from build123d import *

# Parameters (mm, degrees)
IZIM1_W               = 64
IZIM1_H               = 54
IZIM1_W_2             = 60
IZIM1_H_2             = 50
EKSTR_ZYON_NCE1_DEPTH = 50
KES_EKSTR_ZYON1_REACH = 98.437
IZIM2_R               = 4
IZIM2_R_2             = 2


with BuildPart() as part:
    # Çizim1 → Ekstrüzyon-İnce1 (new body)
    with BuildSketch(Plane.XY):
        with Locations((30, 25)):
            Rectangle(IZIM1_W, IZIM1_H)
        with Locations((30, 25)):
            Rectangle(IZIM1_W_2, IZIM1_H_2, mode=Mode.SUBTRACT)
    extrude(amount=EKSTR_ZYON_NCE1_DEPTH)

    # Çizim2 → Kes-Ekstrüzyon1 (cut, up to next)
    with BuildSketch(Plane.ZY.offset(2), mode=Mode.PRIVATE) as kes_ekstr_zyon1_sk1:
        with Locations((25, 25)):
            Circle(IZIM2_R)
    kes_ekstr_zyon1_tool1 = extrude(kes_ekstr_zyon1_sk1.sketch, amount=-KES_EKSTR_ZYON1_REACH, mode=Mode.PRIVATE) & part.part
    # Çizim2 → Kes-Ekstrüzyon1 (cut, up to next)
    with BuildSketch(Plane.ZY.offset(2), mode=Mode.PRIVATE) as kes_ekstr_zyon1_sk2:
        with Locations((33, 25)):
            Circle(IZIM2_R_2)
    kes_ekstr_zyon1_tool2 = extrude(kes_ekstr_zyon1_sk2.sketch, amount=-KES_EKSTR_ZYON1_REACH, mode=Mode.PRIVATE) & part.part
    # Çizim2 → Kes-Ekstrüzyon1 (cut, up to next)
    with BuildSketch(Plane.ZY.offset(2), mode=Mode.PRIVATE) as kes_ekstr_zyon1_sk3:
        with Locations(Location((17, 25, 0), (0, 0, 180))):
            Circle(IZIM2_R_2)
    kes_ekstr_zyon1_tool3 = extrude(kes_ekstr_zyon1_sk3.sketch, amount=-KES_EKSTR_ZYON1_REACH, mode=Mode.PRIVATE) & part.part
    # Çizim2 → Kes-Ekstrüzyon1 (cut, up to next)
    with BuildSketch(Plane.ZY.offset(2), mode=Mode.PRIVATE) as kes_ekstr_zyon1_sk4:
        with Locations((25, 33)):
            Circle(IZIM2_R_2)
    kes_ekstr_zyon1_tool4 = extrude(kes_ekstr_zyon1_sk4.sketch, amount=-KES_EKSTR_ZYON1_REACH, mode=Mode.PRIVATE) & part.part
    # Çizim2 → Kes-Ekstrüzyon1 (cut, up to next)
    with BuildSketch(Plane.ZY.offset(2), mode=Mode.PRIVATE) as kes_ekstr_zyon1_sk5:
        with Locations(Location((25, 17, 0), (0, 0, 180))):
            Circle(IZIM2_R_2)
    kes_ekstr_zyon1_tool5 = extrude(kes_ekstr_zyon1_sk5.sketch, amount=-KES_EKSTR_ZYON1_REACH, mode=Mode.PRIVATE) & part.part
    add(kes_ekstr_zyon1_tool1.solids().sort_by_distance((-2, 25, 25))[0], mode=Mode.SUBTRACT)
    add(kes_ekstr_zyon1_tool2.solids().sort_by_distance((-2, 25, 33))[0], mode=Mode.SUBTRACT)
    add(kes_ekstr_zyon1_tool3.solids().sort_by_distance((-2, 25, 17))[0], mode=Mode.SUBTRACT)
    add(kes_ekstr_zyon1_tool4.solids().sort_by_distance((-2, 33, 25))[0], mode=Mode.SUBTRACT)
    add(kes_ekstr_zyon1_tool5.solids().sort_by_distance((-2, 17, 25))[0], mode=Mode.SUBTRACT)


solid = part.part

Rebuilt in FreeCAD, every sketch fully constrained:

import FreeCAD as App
import Part
import Sketcher

doc = App.newDocument("Part")
body = doc.addObject("PartDesign::Body", "Body")

# Sketch on XY plane
sketch1 = doc.addObject("Sketcher::SketchObject", "Sketch")
body.addObject(sketch1)
sketch1.AttachmentSupport = (doc.XY_Plane, [""])
sketch1.MapMode = "FlatFace"
sketch1.addGeometry([
    Part.LineSegment(App.Vector(-2, 52, 0), App.Vector(-2, -2, 0)),  # 0
    Part.LineSegment(App.Vector(-2, -2, 0), App.Vector(62, -2, 0)),  # 1
    Part.LineSegment(App.Vector(62, -2, 0), App.Vector(62, 52, 0)),  # 2
    Part.LineSegment(App.Vector(62, 52, 0), App.Vector(-2, 52, 0)),  # 3
    Part.LineSegment(App.Vector(60, 0, 0), App.Vector(0, 0, 0)),  # 4
    Part.LineSegment(App.Vector(0, 0, 0), App.Vector(0, 50, 0)),  # 5
    Part.LineSegment(App.Vector(0, 50, 0), App.Vector(60, 50, 0)),  # 6
    Part.LineSegment(App.Vector(60, 50, 0), App.Vector(60, 0, 0)),  # 7
], False)
sketch1.addConstraint([
    Sketcher.Constraint("Coincident", 0, 2, 1, 1),
    Sketcher.Constraint("Coincident", 1, 2, 2, 1),
    Sketcher.Constraint("Coincident", 2, 2, 3, 1),
    Sketcher.Constraint("Coincident", 3, 2, 0, 1),
    Sketcher.Constraint("Coincident", 4, 2, 5, 1),
    Sketcher.Constraint("Coincident", 5, 2, 6, 1),
    Sketcher.Constraint("Coincident", 6, 2, 7, 1),
    Sketcher.Constraint("Coincident", 7, 2, 4, 1),
    Sketcher.Constraint("Vertical", 0),
    Sketcher.Constraint("Horizontal", 1),
    Sketcher.Constraint("Vertical", 2),
    Sketcher.Constraint("Horizontal", 3),
    Sketcher.Constraint("Horizontal", 4),
    Sketcher.Constraint("Vertical", 5),
    Sketcher.Constraint("Horizontal", 6),
    Sketcher.Constraint("Vertical", 7),
    Sketcher.Constraint("Coincident", 4, 2, -1, 1),
    Sketcher.Constraint("DistanceX", 1, 1, 1, 2, 64.0),
    Sketcher.Constraint("DistanceX", 4, 2, 4, 1, 60.0),
    Sketcher.Constraint("DistanceY", 0, 2, 0, 1, 54.0),
    Sketcher.Constraint("DistanceY", 5, 1, 5, 2, 50.0),
    Sketcher.Constraint("DistanceX", 0, 2, -1, 1, 2.0),
    Sketcher.Constraint("DistanceY", 0, 2, -1, 1, 2.0),
])
pad1 = doc.addObject("PartDesign::Pad", "Pad")
body.addObject(pad1)
pad1.Profile = sketch1
pad1.Length = 50

# Sketch on YZ plane
sketch2 = doc.addObject("Sketcher::SketchObject", "Sketch001")
body.addObject(sketch2)
sketch2.AttachmentSupport = (doc.YZ_Plane, [""])
sketch2.MapMode = "FlatFace"
sketch2.AttachmentOffset = App.Placement(App.Vector(0, 0, -2), App.Rotation())
sketch2.addGeometry(Part.Circle(App.Vector(25, 25, 0), App.Vector(0, 0, 1), 4), False)
sketch2.addConstraint([
    Sketcher.Constraint("Diameter", 0, 8.0),
    Sketcher.Constraint("DistanceX", -1, 1, 0, 3, 25.0),
    Sketcher.Constraint("DistanceY", -1, 1, 0, 3, 25.0),
])
pocket1 = doc.addObject("PartDesign::Pocket", "Pocket")
body.addObject(pocket1)
pocket1.Profile = sketch2
pocket1.Type = "UpToFirst"
pocket1.Reversed = True

# Sketch on YZ plane
sketch3 = doc.addObject("Sketcher::SketchObject", "Sketch002")
body.addObject(sketch3)
sketch3.AttachmentSupport = (doc.YZ_Plane, [""])
sketch3.MapMode = "FlatFace"
sketch3.AttachmentOffset = App.Placement(App.Vector(0, 0, -2), App.Rotation())
sketch3.addGeometry(Part.Circle(App.Vector(25, 33, 0), App.Vector(0, 0, 1), 2), False)
sketch3.addConstraint([
    Sketcher.Constraint("Diameter", 0, 4.0),
    Sketcher.Constraint("DistanceX", -1, 1, 0, 3, 25.0),
    Sketcher.Constraint("DistanceY", -1, 1, 0, 3, 33.0),
])
pocket2 = doc.addObject("PartDesign::Pocket", "Pocket001")
body.addObject(pocket2)
pocket2.Profile = sketch3
pocket2.Type = "UpToFirst"
pocket2.Reversed = True

# Sketch on YZ plane
sketch4 = doc.addObject("Sketcher::SketchObject", "Sketch003")
body.addObject(sketch4)
sketch4.AttachmentSupport = (doc.YZ_Plane, [""])
sketch4.MapMode = "FlatFace"
sketch4.AttachmentOffset = App.Placement(App.Vector(0, 0, -2), App.Rotation())
sketch4.addGeometry(Part.Circle(App.Vector(25, 17, 0), App.Vector(0, 0, 1), 2), False)
sketch4.addConstraint([
    Sketcher.Constraint("Diameter", 0, 4.0),
    Sketcher.Constraint("DistanceX", -1, 1, 0, 3, 25.0),
    Sketcher.Constraint("DistanceY", -1, 1, 0, 3, 17.0),
])
pocket3 = doc.addObject("PartDesign::Pocket", "Pocket002")
body.addObject(pocket3)
pocket3.Profile = sketch4
pocket3.Type = "UpToFirst"
pocket3.Reversed = True

# Sketch on YZ plane
sketch5 = doc.addObject("Sketcher::SketchObject", "Sketch004")
body.addObject(sketch5)
sketch5.AttachmentSupport = (doc.YZ_Plane, [""])
sketch5.MapMode = "FlatFace"
sketch5.AttachmentOffset = App.Placement(App.Vector(0, 0, -2), App.Rotation())
sketch5.addGeometry(Part.Circle(App.Vector(33, 25, 0), App.Vector(0, 0, 1), 2), False)
sketch5.addConstraint([
    Sketcher.Constraint("Diameter", 0, 4.0),
    Sketcher.Constraint("DistanceX", -1, 1, 0, 3, 33.0),
    Sketcher.Constraint("DistanceY", -1, 1, 0, 3, 25.0),
])
pocket4 = doc.addObject("PartDesign::Pocket", "Pocket003")
body.addObject(pocket4)
pocket4.Profile = sketch5
pocket4.Type = "UpToFirst"
pocket4.Reversed = True

# Sketch on YZ plane
sketch6 = doc.addObject("Sketcher::SketchObject", "Sketch005")
body.addObject(sketch6)
sketch6.AttachmentSupport = (doc.YZ_Plane, [""])
sketch6.MapMode = "FlatFace"
sketch6.AttachmentOffset = App.Placement(App.Vector(0, 0, -2), App.Rotation())
sketch6.addGeometry(Part.Circle(App.Vector(17, 25, 0), App.Vector(0, 0, 1), 2), False)
sketch6.addConstraint([
    Sketcher.Constraint("Diameter", 0, 4.0),
    Sketcher.Constraint("DistanceX", -1, 1, 0, 3, 17.0),
    Sketcher.Constraint("DistanceY", -1, 1, 0, 3, 25.0),
])
pocket5 = doc.addObject("PartDesign::Pocket", "Pocket004")
body.addObject(pocket5)
pocket5.Profile = sketch6
pocket5.Type = "UpToFirst"
pocket5.Reversed = True

doc.recompute()
